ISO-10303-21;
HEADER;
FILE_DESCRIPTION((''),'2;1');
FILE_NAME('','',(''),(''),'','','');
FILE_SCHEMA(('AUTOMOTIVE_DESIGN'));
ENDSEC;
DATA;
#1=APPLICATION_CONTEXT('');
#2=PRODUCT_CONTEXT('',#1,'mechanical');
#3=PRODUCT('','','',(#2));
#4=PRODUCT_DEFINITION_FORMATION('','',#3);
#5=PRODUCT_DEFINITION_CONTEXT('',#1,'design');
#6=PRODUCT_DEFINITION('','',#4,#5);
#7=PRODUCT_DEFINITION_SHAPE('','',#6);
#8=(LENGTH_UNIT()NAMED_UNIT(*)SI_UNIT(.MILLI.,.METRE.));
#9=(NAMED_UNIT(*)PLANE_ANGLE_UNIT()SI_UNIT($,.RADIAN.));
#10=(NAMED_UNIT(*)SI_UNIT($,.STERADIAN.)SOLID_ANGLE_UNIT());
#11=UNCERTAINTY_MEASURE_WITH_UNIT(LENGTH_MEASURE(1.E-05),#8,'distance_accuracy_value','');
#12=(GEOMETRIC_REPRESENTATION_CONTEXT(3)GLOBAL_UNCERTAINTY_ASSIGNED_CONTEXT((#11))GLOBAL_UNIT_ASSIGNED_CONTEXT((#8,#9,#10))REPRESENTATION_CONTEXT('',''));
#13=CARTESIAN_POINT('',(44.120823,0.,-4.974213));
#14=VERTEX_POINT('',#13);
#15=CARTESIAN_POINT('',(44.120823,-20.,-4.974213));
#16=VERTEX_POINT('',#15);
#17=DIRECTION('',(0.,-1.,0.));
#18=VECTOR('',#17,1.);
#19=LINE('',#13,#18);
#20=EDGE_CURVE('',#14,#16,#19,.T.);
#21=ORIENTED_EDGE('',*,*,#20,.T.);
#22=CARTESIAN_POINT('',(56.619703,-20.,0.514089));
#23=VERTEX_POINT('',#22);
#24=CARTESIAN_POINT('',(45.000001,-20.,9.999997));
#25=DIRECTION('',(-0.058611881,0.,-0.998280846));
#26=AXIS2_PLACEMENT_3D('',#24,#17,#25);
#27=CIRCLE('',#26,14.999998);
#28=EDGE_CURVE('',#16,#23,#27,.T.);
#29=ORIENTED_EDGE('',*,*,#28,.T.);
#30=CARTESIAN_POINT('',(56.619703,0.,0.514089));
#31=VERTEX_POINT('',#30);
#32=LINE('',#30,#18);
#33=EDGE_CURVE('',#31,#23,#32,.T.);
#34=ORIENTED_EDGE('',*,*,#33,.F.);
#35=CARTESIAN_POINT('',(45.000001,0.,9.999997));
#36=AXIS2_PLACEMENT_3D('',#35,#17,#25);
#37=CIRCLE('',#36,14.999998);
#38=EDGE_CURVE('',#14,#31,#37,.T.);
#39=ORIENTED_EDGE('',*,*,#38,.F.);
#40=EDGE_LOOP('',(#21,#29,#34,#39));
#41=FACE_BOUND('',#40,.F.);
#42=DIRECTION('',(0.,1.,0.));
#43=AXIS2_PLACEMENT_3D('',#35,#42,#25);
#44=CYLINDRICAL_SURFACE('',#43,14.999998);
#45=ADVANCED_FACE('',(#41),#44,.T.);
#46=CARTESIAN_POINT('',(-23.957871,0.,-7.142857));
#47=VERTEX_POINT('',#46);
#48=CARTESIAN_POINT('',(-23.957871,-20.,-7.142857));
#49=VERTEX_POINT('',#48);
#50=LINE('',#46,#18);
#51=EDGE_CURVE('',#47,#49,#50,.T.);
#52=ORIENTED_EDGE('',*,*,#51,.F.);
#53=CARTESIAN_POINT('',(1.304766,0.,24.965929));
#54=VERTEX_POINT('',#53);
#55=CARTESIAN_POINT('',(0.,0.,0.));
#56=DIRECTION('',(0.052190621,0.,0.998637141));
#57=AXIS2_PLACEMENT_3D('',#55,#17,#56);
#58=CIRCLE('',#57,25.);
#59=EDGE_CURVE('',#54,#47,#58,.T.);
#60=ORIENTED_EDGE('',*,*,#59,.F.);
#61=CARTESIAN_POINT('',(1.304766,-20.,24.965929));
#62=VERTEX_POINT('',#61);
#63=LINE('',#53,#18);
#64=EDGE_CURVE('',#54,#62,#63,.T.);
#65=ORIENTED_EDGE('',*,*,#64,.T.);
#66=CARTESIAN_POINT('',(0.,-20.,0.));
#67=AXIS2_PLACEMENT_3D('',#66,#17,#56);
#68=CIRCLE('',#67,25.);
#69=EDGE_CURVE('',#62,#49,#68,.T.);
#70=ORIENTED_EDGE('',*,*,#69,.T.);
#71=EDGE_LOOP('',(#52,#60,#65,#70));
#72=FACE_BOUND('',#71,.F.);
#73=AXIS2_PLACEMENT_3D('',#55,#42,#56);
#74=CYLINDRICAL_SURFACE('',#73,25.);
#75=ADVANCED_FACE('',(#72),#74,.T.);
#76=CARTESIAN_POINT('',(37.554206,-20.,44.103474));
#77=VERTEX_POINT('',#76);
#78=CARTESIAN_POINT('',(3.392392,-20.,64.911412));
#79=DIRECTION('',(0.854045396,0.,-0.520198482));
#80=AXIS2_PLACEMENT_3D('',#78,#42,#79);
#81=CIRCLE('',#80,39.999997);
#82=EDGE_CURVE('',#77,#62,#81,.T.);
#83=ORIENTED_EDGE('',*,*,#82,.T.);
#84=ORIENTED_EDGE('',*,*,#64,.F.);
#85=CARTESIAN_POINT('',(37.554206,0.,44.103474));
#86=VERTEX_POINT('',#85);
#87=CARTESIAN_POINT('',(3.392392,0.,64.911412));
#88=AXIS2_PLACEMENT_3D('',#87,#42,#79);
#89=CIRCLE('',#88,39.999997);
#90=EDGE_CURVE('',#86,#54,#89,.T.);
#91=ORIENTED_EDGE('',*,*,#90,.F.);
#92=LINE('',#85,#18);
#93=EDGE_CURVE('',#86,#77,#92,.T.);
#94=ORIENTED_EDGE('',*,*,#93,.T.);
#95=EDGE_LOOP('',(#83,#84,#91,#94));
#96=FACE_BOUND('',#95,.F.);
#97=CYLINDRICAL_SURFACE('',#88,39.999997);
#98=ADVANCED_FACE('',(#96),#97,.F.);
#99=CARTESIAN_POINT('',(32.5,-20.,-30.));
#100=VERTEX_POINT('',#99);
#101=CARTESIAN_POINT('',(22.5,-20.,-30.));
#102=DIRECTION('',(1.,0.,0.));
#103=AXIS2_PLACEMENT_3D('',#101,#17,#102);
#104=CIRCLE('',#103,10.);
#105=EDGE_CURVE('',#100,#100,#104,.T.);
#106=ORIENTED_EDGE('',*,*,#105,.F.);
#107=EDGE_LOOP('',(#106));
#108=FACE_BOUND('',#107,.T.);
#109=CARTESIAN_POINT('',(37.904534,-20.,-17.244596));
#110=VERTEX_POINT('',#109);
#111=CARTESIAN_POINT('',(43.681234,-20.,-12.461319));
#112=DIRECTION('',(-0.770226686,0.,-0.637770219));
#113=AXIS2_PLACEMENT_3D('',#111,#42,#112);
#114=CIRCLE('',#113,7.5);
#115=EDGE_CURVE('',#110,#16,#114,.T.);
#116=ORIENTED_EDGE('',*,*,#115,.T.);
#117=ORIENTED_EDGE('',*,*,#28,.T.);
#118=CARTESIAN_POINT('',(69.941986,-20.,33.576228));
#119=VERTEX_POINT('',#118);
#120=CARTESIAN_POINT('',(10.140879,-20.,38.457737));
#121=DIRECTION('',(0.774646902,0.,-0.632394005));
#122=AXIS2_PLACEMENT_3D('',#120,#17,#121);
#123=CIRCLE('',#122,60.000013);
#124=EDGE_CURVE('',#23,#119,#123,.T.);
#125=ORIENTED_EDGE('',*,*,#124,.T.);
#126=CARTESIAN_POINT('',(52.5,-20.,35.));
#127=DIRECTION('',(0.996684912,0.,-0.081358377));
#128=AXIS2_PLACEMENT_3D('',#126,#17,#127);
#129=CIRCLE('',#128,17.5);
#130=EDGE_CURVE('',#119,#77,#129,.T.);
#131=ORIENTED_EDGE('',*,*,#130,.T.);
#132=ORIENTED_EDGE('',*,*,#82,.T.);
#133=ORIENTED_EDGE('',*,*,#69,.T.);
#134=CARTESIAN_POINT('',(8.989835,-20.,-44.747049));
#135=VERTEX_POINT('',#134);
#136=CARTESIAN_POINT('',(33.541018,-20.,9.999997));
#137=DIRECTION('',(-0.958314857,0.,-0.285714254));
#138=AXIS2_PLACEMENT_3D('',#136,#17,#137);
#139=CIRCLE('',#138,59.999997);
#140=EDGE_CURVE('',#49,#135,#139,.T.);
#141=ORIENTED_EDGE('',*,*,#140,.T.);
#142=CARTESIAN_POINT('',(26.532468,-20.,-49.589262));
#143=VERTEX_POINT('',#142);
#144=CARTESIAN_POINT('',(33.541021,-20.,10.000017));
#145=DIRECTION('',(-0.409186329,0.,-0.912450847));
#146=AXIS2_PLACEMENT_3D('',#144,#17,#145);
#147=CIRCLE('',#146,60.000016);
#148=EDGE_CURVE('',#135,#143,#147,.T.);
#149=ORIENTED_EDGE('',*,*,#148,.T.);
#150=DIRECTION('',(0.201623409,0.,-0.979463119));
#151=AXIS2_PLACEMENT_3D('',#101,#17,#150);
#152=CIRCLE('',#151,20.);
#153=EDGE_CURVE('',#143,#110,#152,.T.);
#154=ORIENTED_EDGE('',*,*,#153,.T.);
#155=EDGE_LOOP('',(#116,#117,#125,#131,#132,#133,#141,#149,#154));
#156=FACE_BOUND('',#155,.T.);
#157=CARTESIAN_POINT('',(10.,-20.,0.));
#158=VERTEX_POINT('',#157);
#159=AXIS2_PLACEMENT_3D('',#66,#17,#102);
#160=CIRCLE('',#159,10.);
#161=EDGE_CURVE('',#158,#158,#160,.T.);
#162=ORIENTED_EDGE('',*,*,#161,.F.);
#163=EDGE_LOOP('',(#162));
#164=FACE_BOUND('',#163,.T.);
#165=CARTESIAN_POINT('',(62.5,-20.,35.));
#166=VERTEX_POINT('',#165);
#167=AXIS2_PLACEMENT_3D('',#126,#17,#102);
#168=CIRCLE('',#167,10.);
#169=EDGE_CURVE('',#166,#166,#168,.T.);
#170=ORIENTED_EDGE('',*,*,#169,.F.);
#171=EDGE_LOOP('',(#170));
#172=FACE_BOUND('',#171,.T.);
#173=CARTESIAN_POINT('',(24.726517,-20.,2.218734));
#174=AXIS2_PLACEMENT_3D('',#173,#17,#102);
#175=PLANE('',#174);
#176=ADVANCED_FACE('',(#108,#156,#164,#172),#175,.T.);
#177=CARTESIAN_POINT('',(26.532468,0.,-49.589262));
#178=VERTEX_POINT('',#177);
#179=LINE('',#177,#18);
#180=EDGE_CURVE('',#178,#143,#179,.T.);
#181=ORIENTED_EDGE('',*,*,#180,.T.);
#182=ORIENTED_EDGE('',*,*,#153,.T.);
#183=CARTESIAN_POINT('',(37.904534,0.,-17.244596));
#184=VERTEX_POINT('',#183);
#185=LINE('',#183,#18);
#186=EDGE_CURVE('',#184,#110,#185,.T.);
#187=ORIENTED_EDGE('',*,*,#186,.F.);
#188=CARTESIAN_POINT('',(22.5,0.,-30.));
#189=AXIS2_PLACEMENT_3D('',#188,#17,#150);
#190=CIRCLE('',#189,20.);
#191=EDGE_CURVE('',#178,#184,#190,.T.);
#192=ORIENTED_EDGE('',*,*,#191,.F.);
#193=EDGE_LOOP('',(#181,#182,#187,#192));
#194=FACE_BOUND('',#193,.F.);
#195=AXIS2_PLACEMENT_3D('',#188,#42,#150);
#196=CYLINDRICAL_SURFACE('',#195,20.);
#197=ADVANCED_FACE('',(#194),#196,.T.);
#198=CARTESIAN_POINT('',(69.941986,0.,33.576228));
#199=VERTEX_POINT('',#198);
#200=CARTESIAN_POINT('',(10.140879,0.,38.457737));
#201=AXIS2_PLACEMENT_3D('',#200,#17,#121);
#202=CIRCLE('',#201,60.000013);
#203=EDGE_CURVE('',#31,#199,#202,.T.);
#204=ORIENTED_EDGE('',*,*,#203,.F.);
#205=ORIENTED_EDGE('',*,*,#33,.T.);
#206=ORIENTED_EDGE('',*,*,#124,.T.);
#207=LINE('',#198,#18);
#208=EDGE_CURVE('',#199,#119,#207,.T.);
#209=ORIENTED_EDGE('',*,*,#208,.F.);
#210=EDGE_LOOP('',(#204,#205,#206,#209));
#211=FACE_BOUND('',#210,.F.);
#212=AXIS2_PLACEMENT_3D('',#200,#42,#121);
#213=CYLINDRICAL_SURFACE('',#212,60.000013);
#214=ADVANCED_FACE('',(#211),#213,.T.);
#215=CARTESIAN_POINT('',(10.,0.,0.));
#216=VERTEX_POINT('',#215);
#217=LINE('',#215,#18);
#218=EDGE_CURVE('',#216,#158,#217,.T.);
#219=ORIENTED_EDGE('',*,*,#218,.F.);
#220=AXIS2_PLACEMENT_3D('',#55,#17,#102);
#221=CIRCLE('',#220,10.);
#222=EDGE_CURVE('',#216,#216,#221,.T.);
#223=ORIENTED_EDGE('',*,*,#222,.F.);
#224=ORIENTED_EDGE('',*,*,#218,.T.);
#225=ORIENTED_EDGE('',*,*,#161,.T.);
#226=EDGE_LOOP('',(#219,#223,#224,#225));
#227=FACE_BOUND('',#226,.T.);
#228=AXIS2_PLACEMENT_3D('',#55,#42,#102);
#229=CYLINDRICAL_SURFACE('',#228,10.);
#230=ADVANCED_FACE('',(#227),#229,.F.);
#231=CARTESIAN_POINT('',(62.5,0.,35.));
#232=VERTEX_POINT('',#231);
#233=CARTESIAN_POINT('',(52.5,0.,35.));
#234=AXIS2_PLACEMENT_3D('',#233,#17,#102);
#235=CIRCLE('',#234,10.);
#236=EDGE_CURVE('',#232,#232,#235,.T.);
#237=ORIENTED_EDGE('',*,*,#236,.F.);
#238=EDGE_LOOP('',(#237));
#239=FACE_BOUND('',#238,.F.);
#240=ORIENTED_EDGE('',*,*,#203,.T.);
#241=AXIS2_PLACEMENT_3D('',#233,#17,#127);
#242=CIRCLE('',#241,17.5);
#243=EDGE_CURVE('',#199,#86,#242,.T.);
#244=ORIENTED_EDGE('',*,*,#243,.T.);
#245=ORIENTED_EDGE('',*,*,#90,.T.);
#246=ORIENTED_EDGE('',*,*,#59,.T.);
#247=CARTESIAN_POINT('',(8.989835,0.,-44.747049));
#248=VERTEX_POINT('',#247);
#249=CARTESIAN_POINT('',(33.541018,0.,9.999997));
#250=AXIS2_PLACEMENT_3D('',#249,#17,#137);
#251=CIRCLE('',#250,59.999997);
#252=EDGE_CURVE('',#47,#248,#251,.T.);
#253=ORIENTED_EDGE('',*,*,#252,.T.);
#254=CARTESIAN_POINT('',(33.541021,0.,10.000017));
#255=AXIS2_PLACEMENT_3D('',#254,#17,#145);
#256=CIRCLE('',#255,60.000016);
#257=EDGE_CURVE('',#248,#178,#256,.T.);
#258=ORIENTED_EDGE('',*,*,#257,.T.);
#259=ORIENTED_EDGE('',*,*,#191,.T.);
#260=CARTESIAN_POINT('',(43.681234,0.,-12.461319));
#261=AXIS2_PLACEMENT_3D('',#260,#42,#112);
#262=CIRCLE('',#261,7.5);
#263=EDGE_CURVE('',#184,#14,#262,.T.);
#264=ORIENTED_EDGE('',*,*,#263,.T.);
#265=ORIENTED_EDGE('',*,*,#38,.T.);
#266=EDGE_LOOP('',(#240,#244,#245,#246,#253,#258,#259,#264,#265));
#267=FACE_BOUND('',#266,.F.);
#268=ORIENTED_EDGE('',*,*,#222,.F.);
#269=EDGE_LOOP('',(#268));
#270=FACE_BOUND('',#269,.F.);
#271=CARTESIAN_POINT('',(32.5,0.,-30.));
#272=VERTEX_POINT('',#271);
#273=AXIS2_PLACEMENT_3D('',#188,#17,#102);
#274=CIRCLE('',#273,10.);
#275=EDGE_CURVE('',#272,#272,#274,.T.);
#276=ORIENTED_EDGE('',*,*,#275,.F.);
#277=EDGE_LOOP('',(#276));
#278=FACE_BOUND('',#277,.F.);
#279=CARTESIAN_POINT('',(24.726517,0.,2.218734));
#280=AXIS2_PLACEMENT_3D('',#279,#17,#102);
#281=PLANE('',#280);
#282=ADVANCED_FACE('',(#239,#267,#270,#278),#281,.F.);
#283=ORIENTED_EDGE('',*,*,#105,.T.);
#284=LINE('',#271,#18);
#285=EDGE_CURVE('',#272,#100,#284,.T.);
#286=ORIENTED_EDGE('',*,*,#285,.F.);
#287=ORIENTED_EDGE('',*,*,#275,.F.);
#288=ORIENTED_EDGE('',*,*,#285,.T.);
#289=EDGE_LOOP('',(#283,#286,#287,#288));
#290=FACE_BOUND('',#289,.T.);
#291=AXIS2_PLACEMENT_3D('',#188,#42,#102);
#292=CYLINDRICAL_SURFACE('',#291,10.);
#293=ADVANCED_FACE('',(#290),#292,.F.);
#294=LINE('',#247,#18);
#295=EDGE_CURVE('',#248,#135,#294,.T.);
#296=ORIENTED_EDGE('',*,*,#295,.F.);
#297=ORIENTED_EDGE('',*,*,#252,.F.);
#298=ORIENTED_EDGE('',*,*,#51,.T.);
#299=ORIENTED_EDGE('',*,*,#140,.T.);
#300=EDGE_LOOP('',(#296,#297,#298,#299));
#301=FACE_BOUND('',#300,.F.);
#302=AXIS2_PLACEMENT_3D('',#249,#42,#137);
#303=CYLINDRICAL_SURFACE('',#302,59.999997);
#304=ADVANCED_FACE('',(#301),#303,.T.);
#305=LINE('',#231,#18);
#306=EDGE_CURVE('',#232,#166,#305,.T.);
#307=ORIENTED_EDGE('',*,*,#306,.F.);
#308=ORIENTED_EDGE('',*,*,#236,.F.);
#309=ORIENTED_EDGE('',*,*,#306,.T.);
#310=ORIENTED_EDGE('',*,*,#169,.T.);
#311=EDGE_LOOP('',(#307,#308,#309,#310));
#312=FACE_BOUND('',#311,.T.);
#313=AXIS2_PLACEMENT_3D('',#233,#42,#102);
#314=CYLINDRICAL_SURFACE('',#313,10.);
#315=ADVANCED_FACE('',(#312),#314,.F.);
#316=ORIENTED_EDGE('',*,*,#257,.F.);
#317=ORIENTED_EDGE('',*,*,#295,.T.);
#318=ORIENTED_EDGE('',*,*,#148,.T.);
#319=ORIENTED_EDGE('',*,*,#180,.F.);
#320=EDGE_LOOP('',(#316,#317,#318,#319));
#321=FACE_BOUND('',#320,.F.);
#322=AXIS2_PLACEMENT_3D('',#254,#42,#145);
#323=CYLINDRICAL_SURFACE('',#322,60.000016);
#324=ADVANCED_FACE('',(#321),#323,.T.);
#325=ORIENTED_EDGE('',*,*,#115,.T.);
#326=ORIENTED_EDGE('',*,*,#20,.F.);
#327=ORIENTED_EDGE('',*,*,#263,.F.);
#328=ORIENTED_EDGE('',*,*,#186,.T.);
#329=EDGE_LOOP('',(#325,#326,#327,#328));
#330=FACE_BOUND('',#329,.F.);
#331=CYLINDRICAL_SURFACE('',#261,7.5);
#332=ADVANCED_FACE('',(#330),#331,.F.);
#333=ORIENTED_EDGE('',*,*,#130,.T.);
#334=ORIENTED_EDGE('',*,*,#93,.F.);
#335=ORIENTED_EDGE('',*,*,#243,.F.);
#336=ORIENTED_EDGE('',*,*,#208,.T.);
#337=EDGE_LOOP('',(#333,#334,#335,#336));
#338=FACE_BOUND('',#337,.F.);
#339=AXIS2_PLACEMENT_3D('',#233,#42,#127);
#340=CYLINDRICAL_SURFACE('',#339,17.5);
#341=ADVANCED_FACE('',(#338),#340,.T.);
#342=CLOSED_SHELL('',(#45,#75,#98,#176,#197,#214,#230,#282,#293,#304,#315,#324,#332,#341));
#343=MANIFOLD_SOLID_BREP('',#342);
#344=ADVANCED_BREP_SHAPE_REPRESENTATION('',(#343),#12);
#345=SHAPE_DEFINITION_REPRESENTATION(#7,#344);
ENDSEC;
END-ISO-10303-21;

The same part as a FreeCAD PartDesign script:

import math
import FreeCAD as App
import Part
import Sketcher
from FreeCAD import Vector
Q = App.Units.Quantity

doc = App.newDocument("Part")
body = doc.addObject("PartDesign::Body", "Body")

# Sketch on XZ plane
sketch1 = doc.addObject("Sketcher::SketchObject", "Sketch")
body.addObject(sketch1)
sketch1.AttachmentSupport = (doc.XZ_Plane, [""])
sketch1.MapMode = "FlatFace"
sketch1.addGeometry([
    Part.ArcOfCircle(Part.Circle(Vector(3.392392, 64.911412, 0), Vector(0, 0, 1), 39.999997), math.radians(-92.991664), math.radians(-31.345566)),  # 0
    Part.ArcOfCircle(Part.Circle(Vector(0, 0, 0), Vector(0, 0, 1), 25), math.radians(87.008339), math.radians(196.60155)),  # 1
    Part.ArcOfCircle(Part.Circle(Vector(33.541018, 9.999997, 0), Vector(0, 0, 1), 59.999997), math.radians(-163.398452), math.radians(-114.153736)),  # 2
    Part.ArcOfCircle(Part.Circle(Vector(33.541021, 10.000017, 0), Vector(0, 0, 1), 60.000016), math.radians(-114.153732), math.radians(-96.707987)),  # 3
    Part.ArcOfCircle(Part.Circle(Vector(22.5, -30, 0), Vector(0, 0, 1), 20), math.radians(-78.368092), math.radians(39.625748)),  # 4
    Part.ArcOfCircle(Part.Circle(Vector(43.681234, -12.461319, 0), Vector(0, 0, 1), 7.5), math.radians(86.639863), math.radians(219.625751)),  # 5
    Part.ArcOfCircle(Part.Circle(Vector(45.000001, 9.999997, 0), Vector(0, 0, 1), 14.999998), math.radians(-93.360139), math.radians(-39.226968)),  # 6
    Part.ArcOfCircle(Part.Circle(Vector(10.140879, 38.457737, 0), Vector(0, 0, 1), 60.000013), math.radians(-39.22697), math.radians(-4.666655)),  # 7
    Part.ArcOfCircle(Part.Circle(Vector(52.5, 35, 0), Vector(0, 0, 1), 17.5), math.radians(-4.66665), math.radians(148.65443)),  # 8
    Part.Circle(Vector(22.5, -30, 0), Vector(0, 0, 1), 10),  # 9
    Part.Circle(Vector(0, 0, 0), Vector(0, 0, 1), 10),  # 10
    Part.Circle(Vector(52.5, 35, 0), Vector(0, 0, 1), 10),  # 11
], False)
sketch1.addConstraint([
    Sketcher.Constraint("Tangent", 0, 1, 1, 1),
    Sketcher.Constraint("Tangent", 1, 2, 2, 1),
    Sketcher.Constraint("Tangent", 2, 2, 3, 1),
    Sketcher.Constraint("Coincident", 3, 2, 4, 1),
    Sketcher.Constraint("Tangent", 4, 2, 5, 2),
    Sketcher.Constraint("Tangent", 5, 1, 6, 1),
    Sketcher.Constraint("Tangent", 6, 2, 7, 1),
    Sketcher.Constraint("Tangent", 7, 2, 8, 1),
    Sketcher.Constraint("Tangent", 8, 2, 0, 2),
    Sketcher.Constraint("Coincident", 1, 3, -1, 1),
    Sketcher.Constraint("Coincident", 10, 3, -1, 1),
    Sketcher.Constraint("Coincident", 9, 3, 4, 3),
    Sketcher.Constraint("Coincident", 11, 3, 8, 3),
    Sketcher.Constraint("Equal", 9, 10),
    Sketcher.Constraint("Equal", 10, 11),
    Sketcher.Constraint("Horizontal", 2, 3, 6, 3),
    Sketcher.Constraint("Diameter", 9, Q("20 mm")),
    Sketcher.Constraint("Radius", 1, Q("25 mm")),
    Sketcher.Constraint("Radius", 4, Q("20 mm")),
    Sketcher.Constraint("Radius", 5, Q("7.5 mm")),
    Sketcher.Constraint("Radius", 8, Q("17.5 mm")),
    Sketcher.Constraint("DistanceY", 4, 3, -1, 1, Q("30 mm")),
    Sketcher.Constraint("DistanceX", -1, 1, 6, 3, Q("45.000001 mm")),
    Sketcher.Constraint("DistanceY", -1, 1, 8, 3, Q("35 mm")),
    Sketcher.Constraint("DistanceX", -1, 1, 4, 3, Q("22.5 mm")),
    Sketcher.Constraint("DistanceX", -1, 1, 8, 3, Q("52.5 mm")),
    Sketcher.Constraint("Radius", 0, Q("39.999997 mm")),
    Sketcher.Constraint("Radius", 2, Q("59.999997 mm")),
    Sketcher.Constraint("Radius", 3, Q("60.000016 mm")),
    Sketcher.Constraint("Radius", 6, Q("14.999998 mm")),
    Sketcher.Constraint("Radius", 7, Q("60.000013 mm")),
    Sketcher.Constraint("DistanceX", 2, 2, 5, 3, Q("34.691399 mm")),
    Sketcher.Constraint("DistanceX", 4, 2, 5, 3, Q("5.7767 mm")),
])
pad1 = doc.addObject("PartDesign::Pad", "Pad")
body.addObject(pad1)
pad1.Profile = sketch1
pad1.Length = 20

doc.recompute()
